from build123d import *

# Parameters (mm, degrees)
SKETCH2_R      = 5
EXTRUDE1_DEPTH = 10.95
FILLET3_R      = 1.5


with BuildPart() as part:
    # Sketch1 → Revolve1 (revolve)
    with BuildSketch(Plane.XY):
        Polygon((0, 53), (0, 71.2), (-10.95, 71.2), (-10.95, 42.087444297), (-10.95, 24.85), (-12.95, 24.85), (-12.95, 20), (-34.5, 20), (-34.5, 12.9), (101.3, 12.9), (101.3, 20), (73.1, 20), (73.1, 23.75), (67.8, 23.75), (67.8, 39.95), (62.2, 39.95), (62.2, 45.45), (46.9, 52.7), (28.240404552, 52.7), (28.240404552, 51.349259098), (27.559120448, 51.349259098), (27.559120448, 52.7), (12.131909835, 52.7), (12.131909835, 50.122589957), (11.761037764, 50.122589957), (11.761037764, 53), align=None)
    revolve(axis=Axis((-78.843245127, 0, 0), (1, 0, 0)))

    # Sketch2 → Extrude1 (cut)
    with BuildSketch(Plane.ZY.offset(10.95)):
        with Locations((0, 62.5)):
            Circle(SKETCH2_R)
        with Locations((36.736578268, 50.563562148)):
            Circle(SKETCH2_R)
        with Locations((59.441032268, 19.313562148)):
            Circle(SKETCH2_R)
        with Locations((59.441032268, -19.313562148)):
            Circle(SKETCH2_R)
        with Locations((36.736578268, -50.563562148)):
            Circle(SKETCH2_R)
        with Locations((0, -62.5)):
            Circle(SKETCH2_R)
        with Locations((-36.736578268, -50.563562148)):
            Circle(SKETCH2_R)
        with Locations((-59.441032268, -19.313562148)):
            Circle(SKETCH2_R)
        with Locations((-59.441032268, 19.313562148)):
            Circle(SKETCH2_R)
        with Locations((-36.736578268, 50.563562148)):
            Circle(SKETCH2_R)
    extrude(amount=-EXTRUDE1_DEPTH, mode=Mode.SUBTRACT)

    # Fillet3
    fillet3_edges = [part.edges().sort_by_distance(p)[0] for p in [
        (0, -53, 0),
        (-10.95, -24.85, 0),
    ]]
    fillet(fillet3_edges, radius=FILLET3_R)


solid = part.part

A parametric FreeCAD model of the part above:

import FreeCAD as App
import Part
import Sketcher


def edges_at(feature, points):
    """Names of the edges that pass closest to the given points."""
    edges = feature.Shape.Edges
    near = lambda p: min(range(len(edges)), key=lambda i: edges[i].distToShape(Part.Vertex(*p))[0])
    return sorted({f"Edge{near(p) + 1}" for p in points})


def add_polygon(sketch, points):
    """Adds a closed chain of lines whose ends are joined by coincident constraints."""
    first, n = sketch.GeometryCount, len(points)
    for a, b in zip(points, points[1:] + points[:1]):
        sketch.addGeometry(Part.LineSegment(App.Vector(*a, 0), App.Vector(*b, 0)), False)
    for i in range(n):
        sketch.addConstraint(Sketcher.Constraint("Coincident", first + i, 2, first + (i + 1) % n, 1))

doc = App.newDocument("Part")
body = doc.addObject("PartDesign::Body", "Body")

# Sketch on XY plane
sketch1 = doc.addObject("Sketcher::SketchObject", "Sketch")
body.addObject(sketch1)
sketch1.AttachmentSupport = (doc.XY_Plane, [""])
sketch1.MapMode = "FlatFace"
add_polygon(sketch1, [(0, 53), (0, 71.2), (-10.95, 71.2), (-10.95, 24.85), (-12.95, 24.85), (-12.95, 20), (-34.5, 20), (-34.5, 12.9), (101.3, 12.9), (101.3, 20), (73.1, 20), (73.1, 23.75), (67.8, 23.75), (67.8, 39.95), (62.2, 39.95), (62.2, 45.45), (46.9, 52.7), (28.240405, 52.7), (28.240405, 51.349259), (27.55912, 51.349259), (27.55912, 52.7), (12.13191, 52.7), (12.13191, 50.12259), (11.761038, 50.12259), (11.761038, 53)])  # lines 0-24
sketch1.addConstraint(Sketcher.Constraint("Vertical", 0))
sketch1.addConstraint(Sketcher.Constraint("Horizontal", 1))
sketch1.addConstraint(Sketcher.Constraint("Vertical", 2))
sketch1.addConstraint(Sketcher.Constraint("Horizontal", 3))
sketch1.addConstraint(Sketcher.Constraint("Vertical", 4))
sketch1.addConstraint(Sketcher.Constraint("Horizontal", 5))
sketch1.addConstraint(Sketcher.Constraint("Vertical", 6))
sketch1.addConstraint(Sketcher.Constraint("Horizontal", 7))
sketch1.addConstraint(Sketcher.Constraint("Vertical", 8))
sketch1.addConstraint(Sketcher.Constraint("Horizontal", 9))
sketch1.addConstraint(Sketcher.Constraint("Vertical", 10))
sketch1.addConstraint(Sketcher.Constraint("Horizontal", 11))
sketch1.addConstraint(Sketcher.Constraint("Vertical", 12))
sketch1.addConstraint(Sketcher.Constraint("Horizontal", 13))
sketch1.addConstraint(Sketcher.Constraint("Vertical", 14))
sketch1.addConstraint(Sketcher.Constraint("Horizontal", 16))
sketch1.addConstraint(Sketcher.Constraint("Vertical", 17))
sketch1.addConstraint(Sketcher.Constraint("Horizontal", 18))
sketch1.addConstraint(Sketcher.Constraint("Vertical", 19))
sketch1.addConstraint(Sketcher.Constraint("Horizontal", 20))
sketch1.addConstraint(Sketcher.Constraint("Vertical", 21))
sketch1.addConstraint(Sketcher.Constraint("Horizontal", 22))
sketch1.addConstraint(Sketcher.Constraint("Vertical", 23))
sketch1.addConstraint(Sketcher.Constraint("Horizontal", 24))
sketch1.addConstraint(Sketcher.Constraint("PointOnObject", 0, 2, -2))
sketch1.addConstraint(Sketcher.Constraint("Horizontal", 5, 2, 8, 2))
sketch1.addConstraint(Sketcher.Constraint("Horizontal", 16, 2, 19, 2))
sketch1.addConstraint(Sketcher.Constraint("DistanceX", 3, 2, 3, 1, 2.0))
sketch1.addConstraint(Sketcher.Constraint("DistanceX", 7, 1, 7, 2, 135.8))
sketch1.addConstraint(Sketcher.Constraint("DistanceX", 9, 2, 9, 1, 28.2))
sketch1.addConstraint(Sketcher.Constraint("DistanceX", 11, 2, 11, 1, 5.3))
sketch1.addConstraint(Sketcher.Constraint("DistanceX", 13, 2, 13, 1, 5.6))
sketch1.addConstraint(Sketcher.Constraint("DistanceY", 0, 1, 0, 2, 18.2))
sketch1.addConstraint(Sketcher.Constraint("DistanceY", 6, 2, 6, 1, 7.1))
sketch1.addConstraint(Sketcher.Constraint("DistanceY", 12, 1, 12, 2, 16.2))
sketch1.addConstraint(Sketcher.Constraint("DistanceY", 14, 1, 14, 2, 5.5))
sketch1.addConstraint(Sketcher.Constraint("DistanceY", -1, 1, 4, 2, 20.0))
sketch1.addConstraint(Sketcher.Constraint("DistanceY", -1, 1, 23, 2, 53.0))
sketch1.addConstraint(Sketcher.Constraint("DistanceX", 1, 2, 1, 1, 10.95))
sketch1.addConstraint(Sketcher.Constraint("DistanceX", 5, 2, 5, 1, 21.55))
sketch1.addConstraint(Sketcher.Constraint("DistanceY", 2, 2, 2, 1, 46.35))
sketch1.addConstraint(Sketcher.Constraint("DistanceY", 10, 1, 10, 2, 3.75))
sketch1.addConstraint(Sketcher.Constraint("DistanceX", -1, 1, 15, 2, 46.9))
sketch1.addConstraint(Sketcher.Constraint("DistanceY", -1, 1, 15, 2, 52.7))
sketch1.addConstraint(Sketcher.Constraint("DistanceX", 20, 2, 20, 1, 15.427211))
sketch1.addConstraint(Sketcher.Constraint("DistanceY", 17, 2, 17, 1, 1.350741))
sketch1.addConstraint(Sketcher.Constraint("DistanceY", 21, 2, 21, 1, 2.57741))
sketch1.addConstraint(Sketcher.Constraint("DistanceX", 16, 2, 16, 1, 18.659595))
sketch1.addConstraint(Sketcher.Constraint("DistanceX", 18, 2, 18, 1, 0.681284))
sketch1.addConstraint(Sketcher.Constraint("DistanceX", 22, 2, 22, 1, 0.370872))
revolution = doc.addObject("PartDesign::Revolution", "Revolution")
body.addObject(revolution)
revolution.Profile = sketch1
revolution.ReferenceAxis = (sketch1, ["H_Axis"])
revolution.Angle = 360

# Sketch on YZ plane
sketch2 = doc.addObject("Sketcher::SketchObject", "Sketch001")
body.addObject(sketch2)
sketch2.AttachmentSupport = (doc.YZ_Plane, [""])
sketch2.MapMode = "FlatFace"
sketch2.AttachmentOffset = App.Placement(App.Vector(0, 0, -10.95), App.Rotation())
sketch2.addGeometry(Part.Circle(App.Vector(62.5, 0, 0), App.Vector(0, 0, 1), 5), False)
sketch2.addGeometry(Part.Circle(App.Vector(50.563562, 36.736578, 0), App.Vector(0, 0, 1), 5), False)
sketch2.addGeometry(Part.Circle(App.Vector(19.313562, 59.441032, 0), App.Vector(0, 0, 1), 5), False)
sketch2.addGeometry(Part.Circle(App.Vector(-19.313562, 59.441032, 0), App.Vector(0, 0, 1), 5), False)
sketch2.addGeometry(Part.Circle(App.Vector(-50.563562, 36.736578, 0), App.Vector(0, 0, 1), 5), False)
sketch2.addGeometry(Part.Circle(App.Vector(-62.5, 0, 0), App.Vector(0, 0, 1), 5), False)
sketch2.addGeometry(Part.Circle(App.Vector(-50.563562, -36.736578, 0), App.Vector(0, 0, 1), 5), False)
sketch2.addGeometry(Part.Circle(App.Vector(-19.313562, -59.441032, 0), App.Vector(0, 0, 1), 5), False)
sketch2.addGeometry(Part.Circle(App.Vector(19.313562, -59.441032, 0), App.Vector(0, 0, 1), 5), False)
sketch2.addGeometry(Part.Circle(App.Vector(50.563562, -36.736578, 0), App.Vector(0, 0, 1), 5), False)
sketch2.addConstraint(Sketcher.Constraint("Equal", 0, 1))
sketch2.addConstraint(Sketcher.Constraint("Equal", 1, 2))
sketch2.addConstraint(Sketcher.Constraint("Equal", 2, 3))
sketch2.addConstraint(Sketcher.Constraint("Equal", 3, 4))
sketch2.addConstraint(Sketcher.Constraint("Equal", 4, 5))
sketch2.addConstraint(Sketcher.Constraint("Equal", 5, 6))
sketch2.addConstraint(Sketcher.Constraint("Equal", 6, 7))
sketch2.addConstraint(Sketcher.Constraint("Equal", 7, 8))
sketch2.addConstraint(Sketcher.Constraint("Equal", 8, 9))
sketch2.addConstraint(Sketcher.Constraint("Symmetric", 0, 3, 5, 3, -1, 1))
sketch2.addConstraint(Sketcher.Constraint("Symmetric", 1, 3, 6, 3, -1, 1))
sketch2.addConstraint(Sketcher.Constraint("Symmetric", 2, 3, 7, 3, -1, 1))
sketch2.addConstraint(Sketcher.Constraint("Symmetric", 3, 3, 8, 3, -1, 1))
sketch2.addConstraint(Sketcher.Constraint("Symmetric", 4, 3, 9, 3, -1, 1))
sketch2.addConstraint(Sketcher.Constraint("Symmetric", 2, 3, 3, 3, -2))
sketch2.addConstraint(Sketcher.Constraint("Symmetric", 1, 3, 4, 3, -2))
sketch2.addConstraint(Sketcher.Constraint("PointOnObject", 0, 3, -1))
sketch2.addConstraint(Sketcher.Constraint("Diameter", 0, 10.0))
sketch2.addConstraint(Sketcher.Constraint("DistanceX", 5, 3, 0, 3, 125.0))
sketch2.addConstraint(Sketcher.Constraint("DistanceX", 2, 3, 1, 3, 31.25))
sketch2.addConstraint(Sketcher.Constraint("DistanceY", -1, 1, 1, 3, 36.736578))
sketch2.addConstraint(Sketcher.Constraint("DistanceY", 6, 3, 3, 3, 96.177611))
sketch2.addConstraint(Sketcher.Constraint("DistanceX", -1, 1, 1, 3, 50.563562))
pocket1 = doc.addObject("PartDesign::Pocket", "Pocket")
body.addObject(pocket1)
pocket1.Profile = sketch2
pocket1.Length = 10.95
pocket1.Reversed = True
doc.recompute()

fillet = doc.addObject("PartDesign::Fillet", "Fillet")
body.addObject(fillet)
fillet.Base = (pocket1, edges_at(pocket1, [(0, -53, 0), (-10.95, -24.85, 0)]))
fillet.Radius = 1.5

doc.recompute()
